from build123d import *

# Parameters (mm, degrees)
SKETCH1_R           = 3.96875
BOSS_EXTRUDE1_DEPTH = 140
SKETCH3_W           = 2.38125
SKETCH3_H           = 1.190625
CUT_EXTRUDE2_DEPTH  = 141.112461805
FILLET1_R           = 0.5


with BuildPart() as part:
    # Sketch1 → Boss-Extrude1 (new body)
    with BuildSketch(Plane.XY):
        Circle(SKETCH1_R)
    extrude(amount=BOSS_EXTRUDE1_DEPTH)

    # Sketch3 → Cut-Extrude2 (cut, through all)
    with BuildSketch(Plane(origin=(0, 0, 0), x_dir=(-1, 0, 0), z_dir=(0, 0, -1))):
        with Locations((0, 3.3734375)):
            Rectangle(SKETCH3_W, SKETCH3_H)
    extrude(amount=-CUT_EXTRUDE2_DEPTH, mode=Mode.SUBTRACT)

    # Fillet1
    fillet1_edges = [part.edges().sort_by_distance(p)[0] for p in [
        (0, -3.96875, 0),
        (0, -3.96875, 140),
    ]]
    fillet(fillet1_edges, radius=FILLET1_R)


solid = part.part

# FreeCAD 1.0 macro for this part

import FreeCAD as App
import Part
import Sketcher
Q = App.Units.Quantity


def edges_at(feature, points):
    """Names of the edges that pass closest to the given points."""
    edges = feature.Shape.Edges
    near = lambda p: min(range(len(edges)), key=lambda i: edges[i].distToShape(Part.Vertex(*p))[0])
    return sorted({f"Edge{near(p) + 1}" for p in points})


def add_polygon(sketch, points):
    """Adds a closed chain of lines whose ends are joined by coincident constraints."""
    first, n = sketch.GeometryCount, len(points)
    for a, b in zip(points, points[1:] + points[:1]):
        sketch.addGeometry(Part.LineSegment(App.Vector(*a, 0), App.Vector(*b, 0)), False)
    for i in range(n):
        sketch.addConstraint(Sketcher.Constraint("Coincident", first + i, 2, first + (i + 1) % n, 1))

doc = App.newDocument("Part")
body = doc.addObject("PartDesign::Body", "Body")

# Sketch on XY plane
sketch1 = body.newObject("Sketcher::SketchObject", "Sketch")
sketch1.AttachmentSupport = (doc.getObject("XY_Plane"), [""])
sketch1.MapMode = "FlatFace"
sketch1.addGeometry(Part.Circle(App.Vector(0, 0, 0), App.Vector(0, 0, 1), 3.96875), False)
sketch1.addConstraint([
    Sketcher.Constraint("Coincident", 0, 3, -1, 1),
    Sketcher.Constraint("Diameter", 0, Q("0.3125 in")),
])
pad1 = body.newObject("PartDesign::Pad", "Pad")
pad1.Profile = sketch1
pad1.Length = 140

# Sketch on XY plane
sketch2 = body.newObject("Sketcher::SketchObject", "Sketch001")
sketch2.AttachmentSupport = (doc.getObject("XY_Plane"), [""])
sketch2.MapMode = "FlatFace"
add_polygon(sketch2, [(1.190625, 3.96875), (1.190625, 2.778125), (-1.190625, 2.778125), (-1.190625, 3.96875)])  # lines 0-3
sketch2.addConstraint([
    Sketcher.Constraint("Vertical", 0),
    Sketcher.Constraint("Horizontal", 1),
    Sketcher.Constraint("Vertical", 2),
    Sketcher.Constraint("Horizontal", 3),
    Sketcher.Constraint("DistanceX", 1, 2, 1, 1, Q("0.09375 in")),
    Sketcher.Constraint("DistanceY", 0, 2, 0, 1, Q("0.046875 in")),
    Sketcher.Constraint("DistanceX", -1, 1, 0, 2, Q("0.046875 in")),
    Sketcher.Constraint("DistanceY", -1, 1, 0, 2, Q("0.109375 in")),
])
pocket1 = body.newObject("PartDesign::Pocket", "Pocket")
pocket1.Profile = sketch2
pocket1.Type = "ThroughAll"
pocket1.Reversed = True
doc.recompute()

fillet = body.newObject("PartDesign::Fillet", "Fillet")
fillet.Base = (pocket1, edges_at(pocket1, [(0, -3.969, 0), (0, -3.969, 140)]))
fillet.Radius = 0.5

doc.recompute()
